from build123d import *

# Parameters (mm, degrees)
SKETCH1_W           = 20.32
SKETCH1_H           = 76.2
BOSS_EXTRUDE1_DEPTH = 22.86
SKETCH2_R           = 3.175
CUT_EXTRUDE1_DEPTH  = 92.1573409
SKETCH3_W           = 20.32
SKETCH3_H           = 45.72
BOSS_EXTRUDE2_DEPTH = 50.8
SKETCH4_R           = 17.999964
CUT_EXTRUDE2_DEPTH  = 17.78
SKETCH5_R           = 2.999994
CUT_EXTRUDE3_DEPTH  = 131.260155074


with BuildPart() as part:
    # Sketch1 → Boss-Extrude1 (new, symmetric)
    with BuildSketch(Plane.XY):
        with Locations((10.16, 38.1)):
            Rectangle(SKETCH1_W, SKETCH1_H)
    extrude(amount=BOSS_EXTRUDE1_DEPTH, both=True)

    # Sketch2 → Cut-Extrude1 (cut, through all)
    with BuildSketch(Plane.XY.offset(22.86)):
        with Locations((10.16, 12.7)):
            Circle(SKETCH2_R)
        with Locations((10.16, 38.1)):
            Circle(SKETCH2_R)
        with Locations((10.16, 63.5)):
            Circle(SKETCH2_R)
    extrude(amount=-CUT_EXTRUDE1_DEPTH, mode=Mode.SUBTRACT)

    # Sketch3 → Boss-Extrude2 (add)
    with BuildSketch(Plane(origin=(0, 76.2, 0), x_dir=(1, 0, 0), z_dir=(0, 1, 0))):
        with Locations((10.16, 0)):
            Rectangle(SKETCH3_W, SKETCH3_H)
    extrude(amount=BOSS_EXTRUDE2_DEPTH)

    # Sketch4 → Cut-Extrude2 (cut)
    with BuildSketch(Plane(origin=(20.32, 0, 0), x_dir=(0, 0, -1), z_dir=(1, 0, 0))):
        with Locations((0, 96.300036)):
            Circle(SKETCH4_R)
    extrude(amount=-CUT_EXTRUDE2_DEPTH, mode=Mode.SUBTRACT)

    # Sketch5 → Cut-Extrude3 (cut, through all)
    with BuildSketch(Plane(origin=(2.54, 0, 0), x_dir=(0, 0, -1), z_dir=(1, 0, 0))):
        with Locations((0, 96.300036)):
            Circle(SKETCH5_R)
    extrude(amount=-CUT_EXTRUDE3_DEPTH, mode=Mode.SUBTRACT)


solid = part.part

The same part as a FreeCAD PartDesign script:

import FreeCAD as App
import Part
import Sketcher

V = App.Vector
Q = App.Units.Quantity


def add_polygon(sketch, points):
    """Adds a closed chain of lines whose ends are joined by coincident constraints."""
    first, n = sketch.GeometryCount, len(points)
    for a, b in zip(points, points[1:] + points[:1]):
        sketch.addGeometry(Part.LineSegment(App.Vector(*a, 0), App.Vector(*b, 0)), False)
    for i in range(n):
        sketch.addConstraint(Sketcher.Constraint("Coincident", first + i, 2, first + (i + 1) % n, 1))

doc = App.newDocument("Part")
body = doc.addObject("PartDesign::Body", "Body")

sketch1 = body.newObject("Sketcher::SketchObject", "Sketch")
sketch1.AttachmentSupport = (doc.getObject("XY_Plane"), [""])
sketch1.MapMode = "FlatFace"
add_polygon(sketch1, [(0, 76), (0, 0), (20, 0), (20, 76)])
sketch1.addConstraint(Sketcher.Constraint("Vertical", 0))
sketch1.addConstraint(Sketcher.Constraint("Horizontal", 1))
sketch1.addConstraint(Sketcher.Constraint("Vertical", 2))
sketch1.addConstraint(Sketcher.Constraint("Horizontal", 3))
sketch1.addConstraint(Sketcher.Constraint("Coincident", 0, 2, -1, 1))
sketch1.addConstraint(Sketcher.Constraint("DistanceY", 0, 2, 0, 1, Q("3 in")))
sketch1.addConstraint(Sketcher.Constraint("DistanceX", 1, 1, 1, 2, Q("0.8 in")))
pad1 = body.newObject("PartDesign::Pad", "Pad")
pad1.Profile = sketch1
pad1.Length = Q("1.8 in")
pad1.Midplane = True

sketch2 = body.newObject("Sketcher::SketchObject", "Sketch001")
sketch2.AttachmentSupport = (doc.getObject("XY_Plane"), [""])
sketch2.MapMode = "FlatFace"
sketch2.AttachmentOffset = App.Placement(V(0, 0, 0.9 * 25.4), App.Rotation())
sketch2.addGeometry(Part.Circle(V(10.2, 12.7, 0), V(0, 0, 1), 3.2), False)
sketch2.addGeometry(Part.Circle(V(10.2, 38.1, 0), V(0, 0, 1), 3.2), False)
sketch2.addGeometry(Part.Circle(V(10.2, 63.5, 0), V(0, 0, 1), 3.2), False)
sketch2.addConstraint(Sketcher.Constraint("Equal", 0, 1))
sketch2.addConstraint(Sketcher.Constraint("Equal", 1, 2))
sketch2.addConstraint(Sketcher.Constraint("Vertical", 0, 3, 1, 3))
sketch2.addConstraint(Sketcher.Constraint("Vertical", 1, 3, 2, 3))
sketch2.addConstraint(Sketcher.Constraint("Diameter", 0, Q("0.25 in")))
sketch2.addConstraint(Sketcher.Constraint("DistanceY", 0, 3, 1, 3, Q("1 in")))
sketch2.addConstraint(Sketcher.Constraint("DistanceY", 1, 3, 2, 3, Q("1 in")))
sketch2.addConstraint(Sketcher.Constraint("DistanceX", -1, 1, 0, 3, Q("0.4 in")))
sketch2.addConstraint(Sketcher.Constraint("DistanceY", -1, 1, 0, 3, Q("0.5 in")))
pocket1 = body.newObject("PartDesign::Pocket", "Pocket")
pocket1.Profile = sketch2
pocket1.Type = "ThroughAll"

sketch3 = body.newObject("Sketcher::SketchObject", "Sketch002")
sketch3.AttachmentSupport = (doc.getObject("XZ_Plane"), [""])
sketch3.MapMode = "FlatFace"
sketch3.AttachmentOffset = App.Placement(V(0, 0, -3 * 25.4), App.Rotation())
add_polygon(sketch3, [(0, -23), (0, 23), (20, 23), (20, -23)])
sketch3.addConstraint(Sketcher.Constraint("Vertical", 0))
sketch3.addConstraint(Sketcher.Constraint("Horizontal", 1))
sketch3.addConstraint(Sketcher.Constraint("Vertical", 2))
sketch3.addConstraint(Sketcher.Constraint("Horizontal", 3))
sketch3.addConstraint(Sketcher.Constraint("Symmetric", 0, 2, 3, 2, -1, 1))
sketch3.addConstraint(Sketcher.Constraint("DistanceX", 1, 1, 1, 2, Q("0.8 in")))
sketch3.addConstraint(Sketcher.Constraint("DistanceY", 0, 1, 0, 2, Q("1.8 in")))
pad2 = body.newObject("PartDesign::Pad", "Pad001")
pad2.Profile = sketch3
pad2.Length = Q("2 in")
pad2.Reversed = True

sketch4 = body.newObject("Sketcher::SketchObject", "Sketch003")
sketch4.AttachmentSupport = (doc.getObject("YZ_Plane"), [""])
sketch4.MapMode = "FlatFace"
sketch4.AttachmentOffset = App.Placement(V(0, 0, 0.8 * 25.4), App.Rotation())
sketch4.addGeometry(Part.Circle(V(96, 0, 0), V(0, 0, 1), 18), False)
sketch4.addConstraint(Sketcher.Constraint("PointOnObject", 0, 3, -1))
sketch4.addConstraint(Sketcher.Constraint("Diameter", 0, Q("35.999928 mm")))
sketch4.addConstraint(Sketcher.Constraint("DistanceX", -1, 1, 0, 3, Q("96.300036 mm")))
pocket2 = body.newObject("PartDesign::Pocket", "Pocket001")
pocket2.Profile = sketch4
pocket2.Length = Q("0.7 in")

sketch5 = body.newObject("Sketcher::SketchObject", "Sketch004")
sketch5.AttachmentSupport = (doc.getObject("YZ_Plane"), [""])
sketch5.MapMode = "FlatFace"
sketch5.AttachmentOffset = App.Placement(V(0, 0, 0.1 * 25.4), App.Rotation())
sketch5.addGeometry(Part.Circle(V(96.300036, 0, 0), V(0, 0, 1), 2.999994), False)
sketch5.addConstraint(Sketcher.Constraint("PointOnObject", 0, 3, -1))
sketch5.addConstraint(Sketcher.Constraint("Diameter", 0, Q("5.999988 mm")))
sketch5.addConstraint(Sketcher.Constraint("DistanceX", -1, 1, 0, 3, Q("96.300036 mm")))
pocket3 = body.newObject("PartDesign::Pocket", "Pocket002")
pocket3.Profile = sketch5
pocket3.Type = "ThroughAll"

doc.recompute()
